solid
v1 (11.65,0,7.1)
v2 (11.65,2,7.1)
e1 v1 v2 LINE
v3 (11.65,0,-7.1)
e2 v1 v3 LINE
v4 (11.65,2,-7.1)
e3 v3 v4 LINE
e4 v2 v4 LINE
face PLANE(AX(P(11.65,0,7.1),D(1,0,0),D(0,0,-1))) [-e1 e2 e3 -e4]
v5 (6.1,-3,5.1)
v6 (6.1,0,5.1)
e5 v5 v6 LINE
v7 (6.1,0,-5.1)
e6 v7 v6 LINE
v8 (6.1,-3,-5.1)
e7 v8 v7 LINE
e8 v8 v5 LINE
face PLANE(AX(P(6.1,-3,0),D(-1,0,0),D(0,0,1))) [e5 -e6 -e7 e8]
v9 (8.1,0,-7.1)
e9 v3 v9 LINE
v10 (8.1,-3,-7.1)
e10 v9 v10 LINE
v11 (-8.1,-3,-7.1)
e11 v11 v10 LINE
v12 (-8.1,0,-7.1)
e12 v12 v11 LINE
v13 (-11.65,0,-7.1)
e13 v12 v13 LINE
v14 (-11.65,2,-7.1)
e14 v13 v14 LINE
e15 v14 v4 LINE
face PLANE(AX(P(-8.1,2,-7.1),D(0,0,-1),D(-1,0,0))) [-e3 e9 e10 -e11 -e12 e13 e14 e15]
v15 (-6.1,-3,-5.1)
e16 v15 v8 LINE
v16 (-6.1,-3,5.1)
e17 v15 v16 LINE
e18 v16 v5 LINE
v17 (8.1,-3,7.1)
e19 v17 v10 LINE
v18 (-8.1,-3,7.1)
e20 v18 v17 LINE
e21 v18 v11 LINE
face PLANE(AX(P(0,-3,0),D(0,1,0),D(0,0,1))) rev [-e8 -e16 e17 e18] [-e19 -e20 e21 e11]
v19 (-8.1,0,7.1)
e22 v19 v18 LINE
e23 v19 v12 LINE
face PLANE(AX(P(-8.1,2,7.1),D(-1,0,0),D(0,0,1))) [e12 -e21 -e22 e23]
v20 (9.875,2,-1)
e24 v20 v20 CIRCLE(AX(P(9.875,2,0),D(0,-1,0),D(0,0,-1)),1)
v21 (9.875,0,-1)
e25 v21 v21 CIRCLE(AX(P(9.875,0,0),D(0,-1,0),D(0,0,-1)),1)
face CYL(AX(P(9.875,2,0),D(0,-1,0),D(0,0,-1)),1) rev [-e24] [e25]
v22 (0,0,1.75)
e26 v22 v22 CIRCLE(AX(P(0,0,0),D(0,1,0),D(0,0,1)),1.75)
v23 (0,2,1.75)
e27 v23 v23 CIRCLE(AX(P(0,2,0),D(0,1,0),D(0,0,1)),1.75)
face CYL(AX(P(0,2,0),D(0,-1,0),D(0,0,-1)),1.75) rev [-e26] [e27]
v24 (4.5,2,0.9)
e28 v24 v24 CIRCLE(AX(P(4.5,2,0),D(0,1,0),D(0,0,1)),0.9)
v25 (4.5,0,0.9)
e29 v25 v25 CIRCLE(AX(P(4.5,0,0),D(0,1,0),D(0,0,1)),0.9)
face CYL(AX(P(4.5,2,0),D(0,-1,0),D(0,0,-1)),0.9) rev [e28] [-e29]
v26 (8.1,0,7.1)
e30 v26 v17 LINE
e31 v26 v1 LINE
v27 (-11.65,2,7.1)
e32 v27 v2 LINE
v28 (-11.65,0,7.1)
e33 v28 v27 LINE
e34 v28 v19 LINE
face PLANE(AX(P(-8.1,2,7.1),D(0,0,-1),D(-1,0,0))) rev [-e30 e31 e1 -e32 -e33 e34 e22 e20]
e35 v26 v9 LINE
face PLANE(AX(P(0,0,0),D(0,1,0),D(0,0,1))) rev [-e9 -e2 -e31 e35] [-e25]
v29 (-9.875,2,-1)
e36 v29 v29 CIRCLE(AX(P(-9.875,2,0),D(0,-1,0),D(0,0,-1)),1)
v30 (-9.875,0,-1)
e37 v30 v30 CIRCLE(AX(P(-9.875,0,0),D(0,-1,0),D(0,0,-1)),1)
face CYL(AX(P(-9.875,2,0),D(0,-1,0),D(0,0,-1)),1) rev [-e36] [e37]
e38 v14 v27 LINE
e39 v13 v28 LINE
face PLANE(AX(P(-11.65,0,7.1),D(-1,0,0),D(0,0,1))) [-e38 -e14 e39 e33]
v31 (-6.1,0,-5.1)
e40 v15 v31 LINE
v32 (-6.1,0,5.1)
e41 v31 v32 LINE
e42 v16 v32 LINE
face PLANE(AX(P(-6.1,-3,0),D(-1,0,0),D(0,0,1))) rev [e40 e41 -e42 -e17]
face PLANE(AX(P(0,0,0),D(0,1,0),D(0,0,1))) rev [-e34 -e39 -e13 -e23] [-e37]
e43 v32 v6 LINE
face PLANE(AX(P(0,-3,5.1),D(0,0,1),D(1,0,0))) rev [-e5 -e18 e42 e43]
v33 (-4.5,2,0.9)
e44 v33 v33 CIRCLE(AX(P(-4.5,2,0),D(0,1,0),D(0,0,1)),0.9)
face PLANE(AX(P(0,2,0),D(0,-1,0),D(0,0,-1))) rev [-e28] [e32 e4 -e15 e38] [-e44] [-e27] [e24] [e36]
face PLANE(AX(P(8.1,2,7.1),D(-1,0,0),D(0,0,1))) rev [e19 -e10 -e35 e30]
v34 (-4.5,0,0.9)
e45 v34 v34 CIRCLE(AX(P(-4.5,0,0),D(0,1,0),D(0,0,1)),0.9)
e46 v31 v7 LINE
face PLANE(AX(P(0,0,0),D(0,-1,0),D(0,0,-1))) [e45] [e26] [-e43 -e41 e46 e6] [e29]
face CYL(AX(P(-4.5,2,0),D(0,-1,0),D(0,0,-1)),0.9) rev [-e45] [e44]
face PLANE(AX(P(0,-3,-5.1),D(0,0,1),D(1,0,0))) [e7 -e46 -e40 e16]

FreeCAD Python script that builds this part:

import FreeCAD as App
import Part
import Sketcher
Q = App.Units.Quantity


def add_polygon(sketch, points):
    """Adds a closed chain of lines whose ends are joined by coincident constraints."""
    first, n = sketch.GeometryCount, len(points)
    for a, b in zip(points, points[1:] + points[:1]):
        sketch.addGeometry(Part.LineSegment(App.Vector(*a, 0), App.Vector(*b, 0)), False)
    for i in range(n):
        sketch.addConstraint(Sketcher.Constraint("Coincident", first + i, 2, first + (i + 1) % n, 1))

doc = App.newDocument("Part")
body = doc.addObject("PartDesign::Body", "Body")

sketch1 = body.newObject("Sketcher::SketchObject", "Sketch")
sketch1.AttachmentSupport = (doc.getObject("XZ_Plane"), [""])
sketch1.MapMode = "FlatFace"
add_polygon(sketch1, [(-8.1, -7.1), (-8.1, 7.1), (8.1, 7.1), (8.1, -7.1)])
sketch1.addGeometry(Part.Circle(App.Vector(-4.5, 0, 0), App.Vector(0, 0, 1), 0.9), False)
sketch1.addGeometry(Part.Circle(App.Vector(0, 0, 0), App.Vector(0, 0, 1), 1.8), False)
sketch1.addGeometry(Part.Circle(App.Vector(4.5, 0, 0), App.Vector(0, 0, 1), 0.9), False)
sketch1.addConstraint([
    Sketcher.Constraint("Vertical", 0),
    Sketcher.Constraint("Horizontal", 1),
    Sketcher.Constraint("Vertical", 2),
    Sketcher.Constraint("Horizontal", 3),
    Sketcher.Constraint("Coincident", 5, 3, -1, 1),
    Sketcher.Constraint("Equal", 4, 6),
    Sketcher.Constraint("Symmetric", 4, 3, 6, 3, -1, 1),
    Sketcher.Constraint("Symmetric", 0, 2, 2, 2, -1, 1),
    Sketcher.Constraint("PointOnObject", 4, 3, -1),
    Sketcher.Constraint("Diameter", 4, Q("1.8 mm")),
    Sketcher.Constraint("Diameter", 5, Q("3.5 mm")),
    Sketcher.Constraint("DistanceX", 1, 1, 1, 2, Q("16.2 mm")),
    Sketcher.Constraint("DistanceY", 0, 1, 0, 2, Q("14.2 mm")),
    Sketcher.Constraint("DistanceX", 4, 3, 6, 3, Q("9 mm")),
])
pad1 = body.newObject("PartDesign::Pad", "Pad")
pad1.Profile = sketch1
pad1.Length = 2
pad1.Reversed = True

sketch2 = body.newObject("Sketcher::SketchObject", "Sketch001")
sketch2.AttachmentSupport = (doc.getObject("XZ_Plane"), [""])
sketch2.MapMode = "FlatFace"
add_polygon(sketch2, [(-8, -7), (-8, 7), (8, 7), (8, -7)])
add_polygon(sketch2, [(6, 5), (-6, 5), (-6, -5), (6, -5)])
sketch2.addConstraint([
    Sketcher.Constraint("Vertical", 0),
    Sketcher.Constraint("Horizontal", 1),
    Sketcher.Constraint("Vertical", 2),
    Sketcher.Constraint("Horizontal", 3),
    Sketcher.Constraint("Horizontal", 4),
    Sketcher.Constraint("Vertical", 5),
    Sketcher.Constraint("Horizontal", 6),
    Sketcher.Constraint("Vertical", 7),
    Sketcher.Constraint("Symmetric", 0, 2, 2, 2, -1, 1),
    Sketcher.Constraint("Symmetric", 4, 2, 6, 2, -1, 1),
    Sketcher.Constraint("DistanceX", 1, 1, 1, 2, Q("16.2 mm")),
    Sketcher.Constraint("DistanceX", 4, 2, 4, 1, Q("12.2 mm")),
    Sketcher.Constraint("DistanceY", 0, 1, 0, 2, Q("14.2 mm")),
    Sketcher.Constraint("DistanceY", 5, 2, 5, 1, Q("10.2 mm")),
])
pad2 = body.newObject("PartDesign::Pad", "Pad001")
pad2.Profile = sketch2
pad2.Length = 3

sketch3 = body.newObject("Sketcher::SketchObject", "Sketch002")
sketch3.AttachmentSupport = (doc.getObject("XZ_Plane"), [""])
sketch3.MapMode = "FlatFace"
sketch3.AttachmentOffset = App.Placement(App.Vector(0, 0, -2), App.Rotation())
add_polygon(sketch3, [(8.1, -7.1), (8.1, 7.1), (11.7, 7.1), (11.7, -7.1)])
add_polygon(sketch3, [(-11.7, -7.1), (-11.7, 7.1), (-8.1, 7.1), (-8.1, -7.1)])
sketch3.addConstraint([
    Sketcher.Constraint("Vertical", 0),
    Sketcher.Constraint("Horizontal", 1),
    Sketcher.Constraint("Vertical", 2),
    Sketcher.Constraint("Horizontal", 3),
    Sketcher.Constraint("Vertical", 4),
    Sketcher.Constraint("Horizontal", 5),
    Sketcher.Constraint("Vertical", 6),
    Sketcher.Constraint("Horizontal", 7),
    Sketcher.Constraint("Symmetric", 2, 2, 4, 2, -1, 1),
    Sketcher.Constraint("Symmetric", 0, 2, 6, 2, -1, 1),
    Sketcher.Constraint("Horizontal", 1, 2, 4, 2),
    Sketcher.Constraint("DistanceY", 0, 1, 0, 2, Q("14.2 mm")),
    Sketcher.Constraint("DistanceX", 1, 1, 1, 2, Q("3.55 mm")),
    Sketcher.Constraint("DistanceX", -1, 1, 0, 2, Q("8.1 mm")),
])
pad3 = body.newObject("PartDesign::Pad", "Pad002")
pad3.Profile = sketch3
pad3.Length = 2

sketch4 = body.newObject("Sketcher::SketchObject", "Sketch003")
sketch4.AttachmentSupport = (doc.getObject("XZ_Plane"), [""])
sketch4.MapMode = "FlatFace"
sketch4.addGeometry([
    Part.Circle(App.Vector(9.9, 0, 0), App.Vector(0, 0, 1), 1),
    Part.Circle(App.Vector(-9.9, 0, 0), App.Vector(0, 0, 1), 1),
], False)
sketch4.addConstraint([
    Sketcher.Constraint("Equal", 0, 1),
    Sketcher.Constraint("Symmetric", 0, 3, 1, 3, -1, 1),
    Sketcher.Constraint("PointOnObject", 0, 3, -1),
    Sketcher.Constraint("Diameter", 0, Q("2 mm")),
    Sketcher.Constraint("DistanceX", 1, 3, 0, 3, Q("19.75 mm")),
])
pocket1 = body.newObject("PartDesign::Pocket", "Pocket")
pocket1.Profile = sketch4
pocket1.Type = "ThroughAll"

doc.recompute()
